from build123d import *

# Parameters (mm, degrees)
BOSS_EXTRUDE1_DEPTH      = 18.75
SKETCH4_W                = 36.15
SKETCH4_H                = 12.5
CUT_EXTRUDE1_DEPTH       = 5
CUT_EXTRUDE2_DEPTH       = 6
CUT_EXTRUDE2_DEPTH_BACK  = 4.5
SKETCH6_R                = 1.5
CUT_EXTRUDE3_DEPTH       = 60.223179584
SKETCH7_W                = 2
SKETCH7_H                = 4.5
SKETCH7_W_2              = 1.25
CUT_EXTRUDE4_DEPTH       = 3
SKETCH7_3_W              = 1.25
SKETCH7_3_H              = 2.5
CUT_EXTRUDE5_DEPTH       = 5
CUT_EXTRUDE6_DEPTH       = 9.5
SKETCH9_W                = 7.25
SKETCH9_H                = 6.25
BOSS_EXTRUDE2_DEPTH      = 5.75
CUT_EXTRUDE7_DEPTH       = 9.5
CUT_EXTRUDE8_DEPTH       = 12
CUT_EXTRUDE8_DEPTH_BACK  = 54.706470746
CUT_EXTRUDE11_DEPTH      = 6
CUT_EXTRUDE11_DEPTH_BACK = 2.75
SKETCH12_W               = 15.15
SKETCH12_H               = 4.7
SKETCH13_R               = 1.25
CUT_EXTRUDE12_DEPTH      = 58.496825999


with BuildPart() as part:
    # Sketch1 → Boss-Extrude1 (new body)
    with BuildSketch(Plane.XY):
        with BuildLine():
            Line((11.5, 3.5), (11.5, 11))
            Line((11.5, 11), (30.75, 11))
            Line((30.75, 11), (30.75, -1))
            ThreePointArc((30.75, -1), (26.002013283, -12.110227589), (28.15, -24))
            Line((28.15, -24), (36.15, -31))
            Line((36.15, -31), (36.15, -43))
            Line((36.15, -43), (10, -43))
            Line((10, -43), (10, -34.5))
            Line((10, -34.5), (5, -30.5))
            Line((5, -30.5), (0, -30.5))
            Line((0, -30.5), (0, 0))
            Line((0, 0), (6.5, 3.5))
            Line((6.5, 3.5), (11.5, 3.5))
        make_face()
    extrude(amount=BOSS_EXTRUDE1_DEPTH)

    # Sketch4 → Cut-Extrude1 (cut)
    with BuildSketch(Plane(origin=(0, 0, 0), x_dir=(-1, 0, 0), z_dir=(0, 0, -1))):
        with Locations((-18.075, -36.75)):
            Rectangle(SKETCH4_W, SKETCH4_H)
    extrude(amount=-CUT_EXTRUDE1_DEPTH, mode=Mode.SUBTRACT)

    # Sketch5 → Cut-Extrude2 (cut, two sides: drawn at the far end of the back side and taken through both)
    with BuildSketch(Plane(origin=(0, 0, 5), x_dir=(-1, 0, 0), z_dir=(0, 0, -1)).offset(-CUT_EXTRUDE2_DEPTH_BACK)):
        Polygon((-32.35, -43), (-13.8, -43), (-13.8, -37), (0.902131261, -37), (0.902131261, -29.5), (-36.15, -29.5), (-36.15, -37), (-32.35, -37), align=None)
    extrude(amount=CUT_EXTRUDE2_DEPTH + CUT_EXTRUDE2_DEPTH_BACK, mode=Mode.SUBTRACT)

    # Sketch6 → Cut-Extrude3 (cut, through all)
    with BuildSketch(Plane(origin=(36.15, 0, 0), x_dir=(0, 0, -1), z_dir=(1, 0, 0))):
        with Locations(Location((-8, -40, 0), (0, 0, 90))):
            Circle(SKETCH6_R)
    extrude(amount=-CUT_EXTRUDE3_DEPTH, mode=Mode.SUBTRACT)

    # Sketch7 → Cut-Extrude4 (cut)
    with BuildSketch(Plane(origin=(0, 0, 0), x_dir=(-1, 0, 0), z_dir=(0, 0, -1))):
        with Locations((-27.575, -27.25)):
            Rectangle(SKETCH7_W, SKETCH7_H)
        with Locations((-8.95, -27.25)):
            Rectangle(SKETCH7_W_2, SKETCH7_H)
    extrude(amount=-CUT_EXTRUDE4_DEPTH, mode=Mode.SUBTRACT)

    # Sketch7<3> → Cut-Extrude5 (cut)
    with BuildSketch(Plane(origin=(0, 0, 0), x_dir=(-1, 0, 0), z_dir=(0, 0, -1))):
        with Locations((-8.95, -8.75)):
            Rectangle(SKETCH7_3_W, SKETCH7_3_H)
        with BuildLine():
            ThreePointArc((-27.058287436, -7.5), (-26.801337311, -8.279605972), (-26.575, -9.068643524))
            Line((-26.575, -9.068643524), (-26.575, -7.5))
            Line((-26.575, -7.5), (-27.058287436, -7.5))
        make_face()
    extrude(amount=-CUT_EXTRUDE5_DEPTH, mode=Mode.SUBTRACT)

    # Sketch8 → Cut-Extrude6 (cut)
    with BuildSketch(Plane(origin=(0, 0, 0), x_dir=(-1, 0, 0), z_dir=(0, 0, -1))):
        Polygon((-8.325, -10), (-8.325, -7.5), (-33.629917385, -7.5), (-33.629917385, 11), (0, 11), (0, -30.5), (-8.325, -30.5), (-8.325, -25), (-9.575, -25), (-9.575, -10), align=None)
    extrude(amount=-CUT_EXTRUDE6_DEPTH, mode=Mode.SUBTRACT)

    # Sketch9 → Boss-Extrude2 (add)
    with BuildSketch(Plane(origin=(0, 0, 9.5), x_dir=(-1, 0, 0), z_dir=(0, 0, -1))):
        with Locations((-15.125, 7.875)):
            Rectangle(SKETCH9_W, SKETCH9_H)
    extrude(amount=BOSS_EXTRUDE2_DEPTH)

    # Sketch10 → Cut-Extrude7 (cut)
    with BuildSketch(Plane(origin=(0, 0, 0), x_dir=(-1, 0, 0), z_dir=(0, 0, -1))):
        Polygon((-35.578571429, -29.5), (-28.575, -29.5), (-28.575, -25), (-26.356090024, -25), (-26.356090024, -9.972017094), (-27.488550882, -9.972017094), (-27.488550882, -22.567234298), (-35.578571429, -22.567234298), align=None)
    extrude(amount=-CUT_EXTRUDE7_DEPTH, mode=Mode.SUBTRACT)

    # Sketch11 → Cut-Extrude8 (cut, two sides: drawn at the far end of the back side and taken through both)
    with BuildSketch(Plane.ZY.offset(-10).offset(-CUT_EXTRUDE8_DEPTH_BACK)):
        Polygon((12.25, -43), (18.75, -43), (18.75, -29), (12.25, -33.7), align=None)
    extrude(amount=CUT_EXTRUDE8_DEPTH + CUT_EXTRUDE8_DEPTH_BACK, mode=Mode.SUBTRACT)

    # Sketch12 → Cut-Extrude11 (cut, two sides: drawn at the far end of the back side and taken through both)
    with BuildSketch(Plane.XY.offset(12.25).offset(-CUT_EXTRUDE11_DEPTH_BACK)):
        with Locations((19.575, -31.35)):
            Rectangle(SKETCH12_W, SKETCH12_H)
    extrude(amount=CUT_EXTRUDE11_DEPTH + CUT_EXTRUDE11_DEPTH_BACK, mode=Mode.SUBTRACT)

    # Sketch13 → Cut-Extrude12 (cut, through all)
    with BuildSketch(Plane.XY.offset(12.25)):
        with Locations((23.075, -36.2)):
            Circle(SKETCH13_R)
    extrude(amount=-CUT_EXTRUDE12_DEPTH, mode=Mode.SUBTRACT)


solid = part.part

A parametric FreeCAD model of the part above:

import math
import FreeCAD as App
import Part
import Sketcher


def add_polygon(sketch, points):
    """Adds a closed chain of lines whose ends are joined by coincident constraints."""
    first, n = sketch.GeometryCount, len(points)
    for a, b in zip(points, points[1:] + points[:1]):
        sketch.addGeometry(Part.LineSegment(App.Vector(*a, 0), App.Vector(*b, 0)), False)
    for i in range(n):
        sketch.addConstraint(Sketcher.Constraint("Coincident", first + i, 2, first + (i + 1) % n, 1))

doc = App.newDocument("Part")
params = doc.addObject("Spreadsheet::Sheet", "Params")
for row, (alias, value) in enumerate([
    ("sketch1_width", "5 mm"),
    ("sketch1_height", "12 mm"),
    ("sketch1_height2", "7.5 mm"),
    ("sketch1_height3", "30.5 mm"),
    ("sketch1_height4", "8.5 mm"),
    ("pad1_length", "18.75 mm"),
    ("sketch2_height", "12.5 mm"),
    ("sketch2_width", "36.15 mm"),
    ("pocket1_length", "5 mm"),
    ("sketch3_height", "6 mm"),
    ("sketch3_width", "3.8 mm"),
    ("sketch3_height2", "7.5 mm"),
    ("sketch3_width2", "18.55 mm"),
    ("pocket2_length", "6 mm"),
    ("pocket2_length2", "4.5 mm"),
    ("sketch4_diameter", "3 mm"),
    ("sketch5_width", "2 mm"),
    ("sketch5_height", "4.5 mm"),
    ("sketch5_width2", "1.25 mm"),
    ("pocket4_length", "3 mm"),
    ("sketch6_height", "2.5 mm"),
    ("sketch6_width", "1.25 mm"),
    ("pocket5_length", "5 mm"),
    ("sketch7_height", "15 mm"),
    ("sketch7_height2", "2.5 mm"),
    ("sketch7_height3", "5.5 mm"),
    ("sketch7_height4", "41.5 mm"),
    ("sketch7_width", "1.25 mm"),
    ("pocket6_length", "9.5 mm"),
    ("sketch8_width", "7.25 mm"),
    ("sketch8_height", "6.25 mm"),
    ("pad2_length", "5.75 mm"),
    ("sketch9_height", "4.5 mm"),
    ("pocket7_length", "9.5 mm"),
    ("sketch10_width", "14 mm"),
    ("sketch10_width2", "9.3 mm"),
    ("sketch10_height", "6.5 mm"),
    ("sketch11_height", "4.7 mm"),
    ("sketch11_width", "15.15 mm"),
    ("pocket9_length", "6 mm"),
    ("pocket9_length2", "2.75 mm"),
    ("sketch12_diameter", "2.5 mm"),
], start=1):
    params.set(f"A{row}", alias)
    params.set(f"B{row}", "=" + value)
    params.setAlias(f"B{row}", alias)

body = doc.addObject("PartDesign::Body", "Body")

sketch1 = doc.addObject("Sketcher::SketchObject", "Sketch")
body.addObject(sketch1)
sketch1.AttachmentSupport = (doc.XY_Plane, [""])
sketch1.MapMode = "FlatFace"
sketch1.addGeometry([
    Part.LineSegment(App.Vector(11.5, 11, 0), App.Vector(11.5, 3.5, 0)),
    Part.LineSegment(App.Vector(11.5, 3.5, 0), App.Vector(6.5, 3.5, 0)),
    Part.LineSegment(App.Vector(6.5, 3.5, 0), App.Vector(0, 0, 0)),
    Part.LineSegment(App.Vector(0, 0, 0), App.Vector(0, -30.5, 0)),
    Part.LineSegment(App.Vector(0, -30.5, 0), App.Vector(5, -30.5, 0)),
    Part.LineSegment(App.Vector(5, -30.5, 0), App.Vector(10, -34.5, 0)),
    Part.LineSegment(App.Vector(10, -34.5, 0), App.Vector(10, -43, 0)),
    Part.LineSegment(App.Vector(10, -43, 0), App.Vector(36.15, -43, 0)),
    Part.LineSegment(App.Vector(36.15, -43, 0), App.Vector(36.15, -31, 0)),
    Part.LineSegment(App.Vector(36.15, -31, 0), App.Vector(28.15, -24, 0)),
    Part.ArcOfCircle(Part.Circle(App.Vector(46.903865, -14.473046, 0), App.Vector(0, 0, 1), 21.034978), math.radians(140.170383), math.radians(206.930548)),
    Part.LineSegment(App.Vector(30.75, -1, 0), App.Vector(30.75, 11, 0)),
    Part.LineSegment(App.Vector(30.75, 11, 0), App.Vector(11.5, 11, 0)),
], False)
sketch1.addConstraint([
    Sketcher.Constraint("Coincident", 0, 2, 1, 1),
    Sketcher.Constraint("Coincident", 1, 2, 2, 1),
    Sketcher.Constraint("Coincident", 2, 2, 3, 1),
    Sketcher.Constraint("Coincident", 3, 2, 4, 1),
    Sketcher.Constraint("Coincident", 4, 2, 5, 1),
    Sketcher.Constraint("Coincident", 5, 2, 6, 1),
    Sketcher.Constraint("Coincident", 6, 2, 7, 1),
    Sketcher.Constraint("Coincident", 7, 2, 8, 1),
    Sketcher.Constraint("Coincident", 8, 2, 9, 1),
    Sketcher.Constraint("Coincident", 9, 2, 10, 2),
    Sketcher.Constraint("Coincident", 10, 1, 11, 1),
    Sketcher.Constraint("Coincident", 11, 2, 12, 1),
    Sketcher.Constraint("Coincident", 12, 2, 0, 1),
    Sketcher.Constraint("Vertical", 0),
    Sketcher.Constraint("Horizontal", 1),
    Sketcher.Constraint("Vertical", 3),
    Sketcher.Constraint("Horizontal", 4),
    Sketcher.Constraint("Vertical", 6),
    Sketcher.Constraint("Horizontal", 7),
    Sketcher.Constraint("Vertical", 8),
    Sketcher.Constraint("Vertical", 11),
    Sketcher.Constraint("Horizontal", 12),
    Sketcher.Constraint("Coincident", 2, 2, -1, 1),
    Sketcher.Constraint("Equal", 1, 4),
    Sketcher.Constraint("Equal", 8, 11),
    Sketcher.Constraint("DistanceX", 1, 2, 1, 1, 5.0),
    Sketcher.Constraint("DistanceY", 8, 1, 8, 2, 12.0),
    Sketcher.Constraint("DistanceY", 0, 2, 0, 1, 7.5),
    Sketcher.Constraint("DistanceY", 3, 2, 3, 1, 30.5),
    Sketcher.Constraint("DistanceY", 6, 2, 6, 1, 8.5),
    Sketcher.Constraint("DistanceX", -1, 1, 5, 2, 10.0),
    Sketcher.Constraint("DistanceY", 6, 2, -1, 1, 43.0),
    Sketcher.Constraint("DistanceY", 9, 2, -1, 1, 24.0),
    Sketcher.Constraint("DistanceY", 10, 1, -1, 1, 1.0),
    Sketcher.Constraint("DistanceX", 9, 2, 8, 2, 8.0),
    Sketcher.Constraint("DistanceX", 7, 1, 7, 2, 26.15),
    Sketcher.Constraint("DistanceX", 12, 2, 12, 1, 19.25),
    Sketcher.Constraint("DistanceX", -1, 1, 0, 2, 11.5),
    Sketcher.Constraint("Radius", 10, 21.034978),
])
sketch1.setExpression("Constraints[25]", "Params.sketch1_width")
sketch1.setExpression("Constraints[26]", "Params.sketch1_height")
sketch1.setExpression("Constraints[27]", "Params.sketch1_height2")
sketch1.setExpression("Constraints[28]", "Params.sketch1_height3")
sketch1.setExpression("Constraints[29]", "Params.sketch1_height4")
pad1 = doc.addObject("PartDesign::Pad", "Pad")
body.addObject(pad1)
pad1.Profile = sketch1
pad1.setExpression("Length", "Params.pad1_length")

sketch2 = doc.addObject("Sketcher::SketchObject", "Sketch001")
body.addObject(sketch2)
sketch2.AttachmentSupport = (doc.XY_Plane, [""])
sketch2.MapMode = "FlatFace"
add_polygon(sketch2, [(36.15, -30.5), (36.15, -43), (0, -43), (0, -30.5)])
sketch2.addConstraint([
    Sketcher.Constraint("Vertical", 0),
    Sketcher.Constraint("Horizontal", 1),
    Sketcher.Constraint("Vertical", 2),
    Sketcher.Constraint("Horizontal", 3),
    Sketcher.Constraint("PointOnObject", 1, 2, -2),
    Sketcher.Constraint("DistanceY", 0, 2, 0, 1, 12.5),
    Sketcher.Constraint("DistanceY", 0, 2, -1, 1, 43.0),
    Sketcher.Constraint("DistanceX", 1, 2, 1, 1, 36.15),
])
sketch2.setExpression("Constraints[9]", "Params.sketch2_height")
sketch2.setExpression("Constraints[11]", "Params.sketch2_width")
pocket1 = doc.addObject("PartDesign::Pocket", "Pocket")
body.addObject(pocket1)
pocket1.Profile = sketch2
pocket1.setExpression("Length", "Params.pocket1_length")
pocket1.Reversed = True

sketch3 = doc.addObject("Sketcher::SketchObject", "Sketch002")
body.addObject(sketch3)
sketch3.AttachmentSupport = (doc.XY_Plane, [""])
sketch3.MapMode = "FlatFace"
sketch3.AttachmentOffset = App.Placement(App.Vector(0, 0, 5), App.Rotation())
add_polygon(sketch3, [(32.35, -43), (13.8, -43), (13.8, -37), (-0.902131, -37), (-0.902131, -29.5), (36.15, -29.5), (36.15, -37), (32.35, -37)])
sketch3.addConstraint([
    Sketcher.Constraint("Horizontal", 0),
    Sketcher.Constraint("Vertical", 1),
    Sketcher.Constraint("Horizontal", 2),
    Sketcher.Constraint("Vertical", 3),
    Sketcher.Constraint("Horizontal", 4),
    Sketcher.Constraint("Vertical", 5),
    Sketcher.Constraint("Horizontal", 6),
    Sketcher.Constraint("Vertical", 7),
    Sketcher.Constraint("Horizontal", 2, 2, 5, 2),
    Sketcher.Constraint("DistanceY", 1, 1, 1, 2, 6.0),
    Sketcher.Constraint("DistanceX", 6, 2, 6, 1, 3.8),
    Sketcher.Constraint("DistanceY", 3, 1, 3, 2, 7.5),
    Sketcher.Constraint("DistanceY", 0, 2, -1, 1, 43.0),
    Sketcher.Constraint("DistanceX", 0, 2, 0, 1, 18.55),
    Sketcher.Constraint("DistanceX", -1, 1, 0, 2, 13.8),
    Sketcher.Constraint("DistanceX", 2, 2, 2, 1, 14.702131),
])
sketch3.setExpression("Constraints[17]", "Params.sketch3_height")
sketch3.setExpression("Constraints[18]", "Params.sketch3_width")
sketch3.setExpression("Constraints[19]", "Params.sketch3_height2")
sketch3.setExpression("Constraints[21]", "Params.sketch3_width2")
pocket2 = doc.addObject("PartDesign::Pocket", "Pocket001")
body.addObject(pocket2)
pocket2.Profile = sketch3
pocket2.Type = "TwoLengths"
pocket2.setExpression("Length", "Params.pocket2_length")
pocket2.setExpression("Length2", "Params.pocket2_length2")

sketch4 = doc.addObject("Sketcher::SketchObject", "Sketch003")
body.addObject(sketch4)
sketch4.AttachmentSupport = (doc.YZ_Plane, [""])
sketch4.MapMode = "FlatFace"
sketch4.AttachmentOffset = App.Placement(App.Vector(0, 0, 36.15), App.Rotation())
sketch4.addGeometry(Part.Circle(App.Vector(-40, 8, 0), App.Vector(0, 0, 1), 1.5), False)
sketch4.addConstraint([
    Sketcher.Constraint("Diameter", 0, 3.0),
    Sketcher.Constraint("DistanceX", 0, 3, -1, 1, 40.0),
    Sketcher.Constraint("DistanceY", -1, 1, 0, 3, 8.0),
])
sketch4.setExpression("Constraints[0]", "Params.sketch4_diameter")
pocket3 = doc.addObject("PartDesign::Pocket", "Pocket002")
body.addObject(pocket3)
pocket3.Profile = sketch4
pocket3.Type = "ThroughAll"

sketch5 = doc.addObject("Sketcher::SketchObject", "Sketch004")
body.addObject(sketch5)
sketch5.AttachmentSupport = (doc.XY_Plane, [""])
sketch5.MapMode = "FlatFace"
add_polygon(sketch5, [(28.575, -25), (28.575, -29.5), (26.575, -29.5), (26.575, -25)])
add_polygon(sketch5, [(9.575, -25), (9.575, -29.5), (8.325, -29.5), (8.325, -25)])
sketch5.addConstraint([
    Sketcher.Constraint("Vertical", 0),
    Sketcher.Constraint("Horizontal", 1),
    Sketcher.Constraint("Vertical", 2),
    Sketcher.Constraint("Horizontal", 3),
    Sketcher.Constraint("Vertical", 4),
    Sketcher.Constraint("Horizontal", 5),
    Sketcher.Constraint("Vertical", 6),
    Sketcher.Constraint("Horizontal", 7),
    Sketcher.Constraint("Horizontal", 1, 2, 4, 2),
    Sketcher.Constraint("Horizontal", 3, 2, 6, 2),
    Sketcher.Constraint("DistanceX", 1, 2, 1, 1, 2.0),
    Sketcher.Constraint("DistanceY", 0, 2, 0, 1, 4.5),
    Sketcher.Constraint("DistanceY", 2, 2, -1, 1, 25.0),
    Sketcher.Constraint("DistanceX", 4, 2, 1, 2, 17.0),
    Sketcher.Constraint("DistanceX", 5, 2, 5, 1, 1.25),
    Sketcher.Constraint("DistanceX", -1, 1, 0, 2, 28.575),
])
sketch5.setExpression("Constraints[18]", "Params.sketch5_width")
sketch5.setExpression("Constraints[19]", "Params.sketch5_height")
sketch5.setExpression("Constraints[22]", "Params.sketch5_width2")
pocket4 = doc.addObject("PartDesign::Pocket", "Pocket003")
body.addObject(pocket4)
pocket4.Profile = sketch5
pocket4.setExpression("Length", "Params.pocket4_length")
pocket4.Reversed = True

sketch6 = doc.addObject("Sketcher::SketchObject", "Sketch005")
body.addObject(sketch6)
sketch6.AttachmentSupport = (doc.XY_Plane, [""])
sketch6.MapMode = "FlatFace"
add_polygon(sketch6, [(9.575, -7.5), (9.575, -10), (8.325, -10), (8.325, -7.5)])
sketch6.addGeometry(Part.ArcOfCircle(Part.Circle(App.Vector(46.903864, -14.473045, 0), App.Vector(0, 0, 1), 21.034978), math.radians(160.640299), math.radians(165.112347)), False)
sketch6.addGeometry(Part.LineSegment(App.Vector(26.575, -9.068644, 0), App.Vector(26.575, -7.5, 0)), False)
sketch6.addGeometry(Part.LineSegment(App.Vector(26.575, -7.5, 0), App.Vector(27.058287, -7.5, 0)), False)
sketch6.addConstraint([
    Sketcher.Constraint("Coincident", 4, 2, 5, 1),
    Sketcher.Constraint("Coincident", 5, 2, 6, 1),
    Sketcher.Constraint("Coincident", 6, 2, 4, 1),
    Sketcher.Constraint("Vertical", 0),
    Sketcher.Constraint("Horizontal", 1),
    Sketcher.Constraint("Vertical", 2),
    Sketcher.Constraint("Horizontal", 3),
    Sketcher.Constraint("Vertical", 5),
    Sketcher.Constraint("Horizontal", 6),
    Sketcher.Constraint("Horizontal", 3, 2, 5, 2),
    Sketcher.Constraint("DistanceY", 0, 2, 0, 1, 2.5),
    Sketcher.Constraint("DistanceY", 0, 2, -1, 1, 10.0),
    Sketcher.Constraint("DistanceX", 0, 2, 4, 2, 17.0),
    Sketcher.Constraint("DistanceX", 1, 2, 1, 1, 1.25),
    Sketcher.Constraint("DistanceX", -1, 1, 0, 2, 9.575),
    Sketcher.Constraint("Radius", 4, 21.034978),
    Sketcher.Constraint("DistanceY", 4, 3, 4, 2, 5.404402),
    Sketcher.Constraint("DistanceX", 6, 1, 6, 2, 0.483287),
])
sketch6.setExpression("Constraints[14]", "Params.sketch6_height")
sketch6.setExpression("Constraints[17]", "Params.sketch6_width")
pocket5 = doc.addObject("PartDesign::Pocket", "Pocket004")
body.addObject(pocket5)
pocket5.Profile = sketch6
pocket5.setExpression("Length", "Params.pocket5_length")
pocket5.Reversed = True

sketch7 = doc.addObject("Sketcher::SketchObject", "Sketch006")
body.addObject(sketch7)
sketch7.AttachmentSupport = (doc.XY_Plane, [""])
sketch7.MapMode = "FlatFace"
add_polygon(sketch7, [(8.325, -7.5), (8.325, -10), (9.575, -10), (9.575, -25), (8.325, -25), (8.325, -30.5), (0, -30.5), (0, 11), (33.629917, 11), (33.629917, -7.5)])
sketch7.addConstraint([
    Sketcher.Constraint("Vertical", 0),
    Sketcher.Constraint("Horizontal", 1),
    Sketcher.Constraint("Vertical", 2),
    Sketcher.Constraint("Horizontal", 3),
    Sketcher.Constraint("Vertical", 4),
    Sketcher.Constraint("Horizontal", 5),
    Sketcher.Constraint("Vertical", 6),
    Sketcher.Constraint("Horizontal", 7),
    Sketcher.Constraint("Vertical", 8),
    Sketcher.Constraint("Horizontal", 9),
    Sketcher.Constraint("PointOnObject", 5, 2, -2),
    Sketcher.Constraint("Vertical", 0, 2, 3, 2),
    Sketcher.Constraint("DistanceY", 2, 2, 2, 1, 15.0),
    Sketcher.Constraint("DistanceY", 0, 2, 0, 1, 2.5),
    Sketcher.Constraint("DistanceY", 4, 2, 4, 1, 5.5),
    Sketcher.Constraint("DistanceY", 6, 1, 6, 2, 41.5),
    Sketcher.Constraint("DistanceY", 0, 2, -1, 1, 10.0),
    Sketcher.Constraint("DistanceX", 1, 1, 1, 2, 1.25),
    Sketcher.Constraint("DistanceX", 5, 2, 5, 1, 8.325),
    Sketcher.Constraint("DistanceX", 7, 1, 7, 2, 33.629917),
])
sketch7.setExpression("Constraints[22]", "Params.sketch7_height")
sketch7.setExpression("Constraints[23]", "Params.sketch7_height2")
sketch7.setExpression("Constraints[24]", "Params.sketch7_height3")
sketch7.setExpression("Constraints[25]", "Params.sketch7_height4")
sketch7.setExpression("Constraints[27]", "Params.sketch7_width")
pocket6 = doc.addObject("PartDesign::Pocket", "Pocket005")
body.addObject(pocket6)
pocket6.Profile = sketch7
pocket6.setExpression("Length", "Params.pocket6_length")
pocket6.Reversed = True

sketch8 = doc.addObject("Sketcher::SketchObject", "Sketch007")
body.addObject(sketch8)
sketch8.AttachmentSupport = (doc.XY_Plane, [""])
sketch8.MapMode = "FlatFace"
sketch8.AttachmentOffset = App.Placement(App.Vector(0, 0, 9.5), App.Rotation())
add_polygon(sketch8, [(18.75, 11), (18.75, 4.75), (11.5, 4.75), (11.5, 11)])
sketch8.addConstraint([
    Sketcher.Constraint("Vertical", 0),
    Sketcher.Constraint("Horizontal", 1),
    Sketcher.Constraint("Vertical", 2),
    Sketcher.Constraint("Horizontal", 3),
    Sketcher.Constraint("DistanceY", -1, 1, 2, 2, 11.0),
    Sketcher.Constraint("DistanceX", 1, 2, 1, 1, 7.25),
    Sketcher.Constraint("DistanceY", 0, 2, 0, 1, 6.25),
    Sketcher.Constraint("DistanceX", -1, 1, 1, 2, 11.5),
])
sketch8.setExpression("Constraints[9]", "Params.sketch8_width")
sketch8.setExpression("Constraints[10]", "Params.sketch8_height")
pad2 = doc.addObject("PartDesign::Pad", "Pad001")
body.addObject(pad2)
pad2.Profile = sketch8
pad2.setExpression("Length", "Params.pad2_length")
pad2.Reversed = True

sketch9 = doc.addObject("Sketcher::SketchObject", "Sketch008")
body.addObject(sketch9)
sketch9.AttachmentSupport = (doc.XY_Plane, [""])
sketch9.MapMode = "FlatFace"
add_polygon(sketch9, [(35.578571, -29.5), (28.575, -29.5), (28.575, -25), (26.35609, -25), (26.35609, -9.972017), (27.488551, -9.972017), (27.488551, -22.567234), (35.578571, -22.567234)])
sketch9.addConstraint([
    Sketcher.Constraint("Horizontal", 0),
    Sketcher.Constraint("Vertical", 1),
    Sketcher.Constraint("Horizontal", 2),
    Sketcher.Constraint("Vertical", 3),
    Sketcher.Constraint("Horizontal", 4),
    Sketcher.Constraint("Vertical", 5),
    Sketcher.Constraint("Horizontal", 6),
    Sketcher.Constraint("Vertical", 7),
    Sketcher.Constraint("DistanceY", 1, 1, 1, 2, 4.5),
    Sketcher.Constraint("DistanceY", 1, 2, -1, 1, 25.0),
    Sketcher.Constraint("DistanceX", -1, 1, 0, 2, 28.575),
    Sketcher.Constraint("DistanceX", 0, 2, 0, 1, 7.003571),
    Sketcher.Constraint("DistanceX", 2, 2, 2, 1, 2.21891),
    Sketcher.Constraint("DistanceX", 4, 1, 4, 2, 1.132461),
    Sketcher.Constraint("DistanceY", 3, 1, 3, 2, 15.027983),
    Sketcher.Constraint("DistanceY", 5, 2, 5, 1, 12.595217),
])
sketch9.setExpression("Constraints[16]", "Params.sketch9_height")
pocket7 = doc.addObject("PartDesign::Pocket", "Pocket006")
body.addObject(pocket7)
pocket7.Profile = sketch9
pocket7.setExpression("Length", "Params.pocket7_length")
pocket7.Reversed = True

sketch10 = doc.addObject("Sketcher::SketchObject", "Sketch009")
body.addObject(sketch10)
sketch10.AttachmentSupport = (doc.YZ_Plane, [""])
sketch10.MapMode = "FlatFace"
sketch10.AttachmentOffset = App.Placement(App.Vector(0, 0, 10), App.Rotation())
add_polygon(sketch10, [(-43, 12.25), (-43, 18.75), (-29, 18.75), (-33.7, 12.25)])
sketch10.addConstraint([
    Sketcher.Constraint("Vertical", 0),
    Sketcher.Constraint("Horizontal", 1),
    Sketcher.Constraint("Horizontal", 3),
    Sketcher.Constraint("DistanceX", 1, 1, 1, 2, 14.0),
    Sketcher.Constraint("DistanceX", 3, 2, 3, 1, 9.3),
    Sketcher.Constraint("DistanceY", 0, 1, 0, 2, 6.5),
    Sketcher.Constraint("DistanceX", 0, 2, -1, 1, 43.0),
    Sketcher.Constraint("DistanceY", -1, 1, 0, 2, 18.75),
])
sketch10.setExpression("Constraints[7]", "Params.sketch10_width")
sketch10.setExpression("Constraints[8]", "Params.sketch10_width2")
sketch10.setExpression("Constraints[9]", "Params.sketch10_height")
pocket8 = doc.addObject("PartDesign::Pocket", "Pocket007")
body.addObject(pocket8)
pocket8.Profile = sketch10
pocket8.Type = "ThroughAll"
pocket8.Midplane = True

sketch11 = doc.addObject("Sketcher::SketchObject", "Sketch010")
body.addObject(sketch11)
sketch11.AttachmentSupport = (doc.XY_Plane, [""])
sketch11.MapMode = "FlatFace"
sketch11.AttachmentOffset = App.Placement(App.Vector(0, 0, 12.25), App.Rotation())
add_polygon(sketch11, [(12, -29), (12, -33.7), (27.15, -33.7), (27.15, -29)])
sketch11.addConstraint([
    Sketcher.Constraint("Vertical", 0),
    Sketcher.Constraint("Horizontal", 1),
    Sketcher.Constraint("Vertical", 2),
    Sketcher.Constraint("Horizontal", 3),
    Sketcher.Constraint("DistanceY", 0, 2, 0, 1, 4.7),
    Sketcher.Constraint("DistanceX", -1, 1, 0, 2, 12.0),
    Sketcher.Constraint("DistanceY", 2, 2, -1, 1, 29.0),
    Sketcher.Constraint("DistanceX", 1, 1, 1, 2, 15.15),
])
sketch11.setExpression("Constraints[8]", "Params.sketch11_height")
sketch11.setExpression("Constraints[11]", "Params.sketch11_width")
pocket9 = doc.addObject("PartDesign::Pocket", "Pocket008")
body.addObject(pocket9)
pocket9.Profile = sketch11
pocket9.Type = "TwoLengths"
pocket9.setExpression("Length", "Params.pocket9_length")
pocket9.setExpression("Length2", "Params.pocket9_length2")
pocket9.Reversed = True

sketch12 = doc.addObject("Sketcher::SketchObject", "Sketch011")
body.addObject(sketch12)
sketch12.AttachmentSupport = (doc.XY_Plane, [""])
sketch12.MapMode = "FlatFace"
sketch12.AttachmentOffset = App.Placement(App.Vector(0, 0, 12.25), App.Rotation())
sketch12.addGeometry(Part.Circle(App.Vector(23.075, -36.2, 0), App.Vector(0, 0, 1), 1.25), False)
sketch12.addConstraint([
    Sketcher.Constraint("Diameter", 0, 2.5),
    Sketcher.Constraint("DistanceY", 0, 3, -1, 1, 36.2),
    Sketcher.Constraint("DistanceX", -1, 1, 0, 3, 23.075),
])
sketch12.setExpression("Constraints[0]", "Params.sketch12_diameter")
pocket10 = doc.addObject("PartDesign::Pocket", "Pocket009")
body.addObject(pocket10)
pocket10.Profile = sketch12
pocket10.Type = "ThroughAll"

doc.recompute()
